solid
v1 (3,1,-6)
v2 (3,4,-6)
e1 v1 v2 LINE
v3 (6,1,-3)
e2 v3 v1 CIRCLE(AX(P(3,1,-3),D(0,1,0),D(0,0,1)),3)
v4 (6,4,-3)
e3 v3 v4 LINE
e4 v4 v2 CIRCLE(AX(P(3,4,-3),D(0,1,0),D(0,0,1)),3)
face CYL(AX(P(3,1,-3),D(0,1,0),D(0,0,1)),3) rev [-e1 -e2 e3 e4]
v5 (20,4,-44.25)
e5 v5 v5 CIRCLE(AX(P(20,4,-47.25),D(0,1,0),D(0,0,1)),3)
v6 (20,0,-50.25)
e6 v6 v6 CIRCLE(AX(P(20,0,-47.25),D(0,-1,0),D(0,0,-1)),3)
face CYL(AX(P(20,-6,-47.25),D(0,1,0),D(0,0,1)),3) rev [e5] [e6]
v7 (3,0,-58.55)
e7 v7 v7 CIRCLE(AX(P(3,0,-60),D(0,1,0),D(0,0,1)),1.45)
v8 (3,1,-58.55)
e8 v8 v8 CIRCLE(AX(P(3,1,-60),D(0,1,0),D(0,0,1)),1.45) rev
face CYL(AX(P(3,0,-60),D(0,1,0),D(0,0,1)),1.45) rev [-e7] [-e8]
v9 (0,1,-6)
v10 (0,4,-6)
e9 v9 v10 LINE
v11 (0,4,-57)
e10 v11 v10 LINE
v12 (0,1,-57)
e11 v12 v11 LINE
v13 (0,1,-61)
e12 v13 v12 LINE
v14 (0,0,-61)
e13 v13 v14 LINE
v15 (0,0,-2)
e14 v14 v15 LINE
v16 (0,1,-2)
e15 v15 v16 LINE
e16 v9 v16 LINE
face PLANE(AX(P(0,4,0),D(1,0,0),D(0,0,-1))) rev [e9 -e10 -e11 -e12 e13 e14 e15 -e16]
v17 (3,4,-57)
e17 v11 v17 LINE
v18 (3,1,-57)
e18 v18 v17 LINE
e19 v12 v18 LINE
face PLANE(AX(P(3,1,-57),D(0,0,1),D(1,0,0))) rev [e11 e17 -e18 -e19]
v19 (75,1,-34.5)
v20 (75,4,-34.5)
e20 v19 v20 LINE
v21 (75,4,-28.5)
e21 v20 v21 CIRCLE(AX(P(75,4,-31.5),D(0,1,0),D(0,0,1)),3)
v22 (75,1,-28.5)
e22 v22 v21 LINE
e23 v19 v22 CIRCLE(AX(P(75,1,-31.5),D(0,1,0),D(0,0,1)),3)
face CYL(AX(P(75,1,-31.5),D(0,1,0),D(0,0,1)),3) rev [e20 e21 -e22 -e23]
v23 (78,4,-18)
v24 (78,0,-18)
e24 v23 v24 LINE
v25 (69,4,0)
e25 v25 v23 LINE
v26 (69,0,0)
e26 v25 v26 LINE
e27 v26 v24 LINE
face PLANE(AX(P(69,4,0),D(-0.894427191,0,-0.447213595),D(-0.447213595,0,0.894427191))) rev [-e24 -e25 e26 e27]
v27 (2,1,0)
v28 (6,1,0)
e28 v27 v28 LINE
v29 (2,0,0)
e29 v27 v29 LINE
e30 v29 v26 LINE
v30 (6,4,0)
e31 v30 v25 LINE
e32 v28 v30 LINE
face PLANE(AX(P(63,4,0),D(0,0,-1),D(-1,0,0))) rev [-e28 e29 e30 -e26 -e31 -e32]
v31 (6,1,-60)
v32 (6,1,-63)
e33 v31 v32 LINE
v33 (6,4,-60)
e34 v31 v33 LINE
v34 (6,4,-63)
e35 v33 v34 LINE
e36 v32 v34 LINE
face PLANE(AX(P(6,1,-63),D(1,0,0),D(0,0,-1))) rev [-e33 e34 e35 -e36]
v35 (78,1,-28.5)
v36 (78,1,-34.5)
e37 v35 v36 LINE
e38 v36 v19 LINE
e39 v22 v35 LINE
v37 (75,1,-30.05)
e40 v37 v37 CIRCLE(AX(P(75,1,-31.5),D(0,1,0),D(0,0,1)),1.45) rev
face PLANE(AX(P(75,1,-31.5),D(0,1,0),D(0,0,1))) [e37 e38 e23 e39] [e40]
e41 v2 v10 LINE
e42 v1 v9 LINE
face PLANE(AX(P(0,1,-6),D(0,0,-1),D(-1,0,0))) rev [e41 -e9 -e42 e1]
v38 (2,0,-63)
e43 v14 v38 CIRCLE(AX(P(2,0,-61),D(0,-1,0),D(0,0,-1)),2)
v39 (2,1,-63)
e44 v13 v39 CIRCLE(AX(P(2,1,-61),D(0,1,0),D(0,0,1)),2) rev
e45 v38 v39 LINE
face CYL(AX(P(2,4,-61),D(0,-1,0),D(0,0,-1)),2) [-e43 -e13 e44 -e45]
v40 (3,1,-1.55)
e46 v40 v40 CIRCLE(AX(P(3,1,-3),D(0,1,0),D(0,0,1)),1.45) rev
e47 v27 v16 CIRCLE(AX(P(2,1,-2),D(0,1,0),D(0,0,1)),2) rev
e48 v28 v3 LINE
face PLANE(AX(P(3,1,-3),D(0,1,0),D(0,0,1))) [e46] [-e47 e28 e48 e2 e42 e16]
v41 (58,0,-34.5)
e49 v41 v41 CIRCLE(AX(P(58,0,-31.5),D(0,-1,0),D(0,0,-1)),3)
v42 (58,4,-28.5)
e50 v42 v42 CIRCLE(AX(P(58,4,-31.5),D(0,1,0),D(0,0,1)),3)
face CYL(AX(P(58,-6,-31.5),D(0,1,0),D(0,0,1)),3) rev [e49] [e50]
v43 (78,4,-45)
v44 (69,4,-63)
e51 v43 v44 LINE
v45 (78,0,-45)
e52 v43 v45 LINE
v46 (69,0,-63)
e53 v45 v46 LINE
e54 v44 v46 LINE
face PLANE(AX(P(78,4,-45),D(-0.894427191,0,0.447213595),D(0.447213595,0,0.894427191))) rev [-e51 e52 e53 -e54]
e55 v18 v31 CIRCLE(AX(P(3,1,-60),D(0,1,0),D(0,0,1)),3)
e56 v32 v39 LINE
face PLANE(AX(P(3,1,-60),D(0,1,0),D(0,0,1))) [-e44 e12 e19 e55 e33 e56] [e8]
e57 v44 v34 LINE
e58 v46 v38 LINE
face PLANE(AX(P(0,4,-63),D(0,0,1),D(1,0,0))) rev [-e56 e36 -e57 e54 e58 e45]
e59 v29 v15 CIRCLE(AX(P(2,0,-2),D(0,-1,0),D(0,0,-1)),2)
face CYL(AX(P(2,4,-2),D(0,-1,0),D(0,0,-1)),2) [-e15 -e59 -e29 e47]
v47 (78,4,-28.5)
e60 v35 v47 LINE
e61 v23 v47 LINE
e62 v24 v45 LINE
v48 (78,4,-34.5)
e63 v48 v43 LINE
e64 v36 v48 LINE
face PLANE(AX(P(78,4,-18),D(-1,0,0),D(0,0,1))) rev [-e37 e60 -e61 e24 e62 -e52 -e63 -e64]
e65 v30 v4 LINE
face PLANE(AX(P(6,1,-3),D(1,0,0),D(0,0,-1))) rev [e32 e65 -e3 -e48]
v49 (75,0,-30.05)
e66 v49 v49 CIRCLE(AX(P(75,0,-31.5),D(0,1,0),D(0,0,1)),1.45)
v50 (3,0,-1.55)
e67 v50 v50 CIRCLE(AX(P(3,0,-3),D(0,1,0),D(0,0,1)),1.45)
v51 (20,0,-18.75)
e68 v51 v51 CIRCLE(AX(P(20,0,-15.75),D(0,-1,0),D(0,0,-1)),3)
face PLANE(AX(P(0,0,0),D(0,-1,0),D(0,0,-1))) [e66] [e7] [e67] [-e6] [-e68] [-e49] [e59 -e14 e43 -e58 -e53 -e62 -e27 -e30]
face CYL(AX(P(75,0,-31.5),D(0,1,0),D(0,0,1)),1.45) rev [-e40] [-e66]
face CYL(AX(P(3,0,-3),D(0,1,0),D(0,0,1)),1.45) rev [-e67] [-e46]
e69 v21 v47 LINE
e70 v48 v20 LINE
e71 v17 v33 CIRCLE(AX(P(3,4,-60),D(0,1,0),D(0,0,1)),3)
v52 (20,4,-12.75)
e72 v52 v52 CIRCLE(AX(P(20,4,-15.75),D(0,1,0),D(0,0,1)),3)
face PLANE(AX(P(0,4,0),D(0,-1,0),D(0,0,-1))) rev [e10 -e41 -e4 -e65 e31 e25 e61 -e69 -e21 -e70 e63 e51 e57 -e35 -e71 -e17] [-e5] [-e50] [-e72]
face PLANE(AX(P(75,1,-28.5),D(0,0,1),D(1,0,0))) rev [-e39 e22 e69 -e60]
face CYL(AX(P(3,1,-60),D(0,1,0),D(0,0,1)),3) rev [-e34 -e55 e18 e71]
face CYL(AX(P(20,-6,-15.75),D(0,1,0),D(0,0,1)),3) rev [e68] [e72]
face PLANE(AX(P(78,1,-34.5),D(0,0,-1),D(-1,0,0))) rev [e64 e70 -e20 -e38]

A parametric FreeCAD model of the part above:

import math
import FreeCAD as App
import Part
import Sketcher

V = App.Vector


def edges_at(feature, points):
    """Names of the edges that pass closest to the given points."""
    edges = feature.Shape.Edges
    near = lambda p: min(range(len(edges)), key=lambda i: edges[i].distToShape(Part.Vertex(*p))[0])
    return sorted({f"Edge{near(p) + 1}" for p in points})


def add_polygon(sketch, points):
    """Adds a closed chain of lines whose ends are joined by coincident constraints."""
    first, n = sketch.GeometryCount, len(points)
    for a, b in zip(points, points[1:] + points[:1]):
        sketch.addGeometry(Part.LineSegment(App.Vector(*a, 0), App.Vector(*b, 0)), False)
    for i in range(n):
        sketch.addConstraint(Sketcher.Constraint("Coincident", first + i, 2, first + (i + 1) % n, 1))

doc = App.newDocument("Part")
params = doc.addObject("Spreadsheet::Sheet", "Params")
for row, (alias, value) in enumerate([
    ("sketch1_width", "69 mm"),
    ("sketch1_height", "27 mm"),
    ("sketch1_height2", "63 mm"),
    ("pad1_length", "4 mm"),
    ("sketch2_diameter", "2.9 mm"),
    ("pocket1_length", "4 mm"),
    ("fillet_radius", "2 mm"),
    ("sketch3_radius", "3 mm"),
    ("pocket2_length", "3 mm"),
    ("sketch4_diameter", "6 mm"),
    ("pocket3_length", "10 mm"),
], start=1):
    params.set(f"A{row}", alias)
    params.set(f"B{row}", "=" + value)
    params.setAlias(f"B{row}", alias)

body = doc.addObject("PartDesign::Body", "Body")

# Sketch on XZ plane
sketch1 = doc.addObject("Sketcher::SketchObject", "Sketch")
body.addObject(sketch1)
sketch1.AttachmentSupport = (doc.XZ_Plane, [""])
sketch1.MapMode = "FlatFace"
add_polygon(sketch1, [(69, 0), (78, -18), (78, -45), (69, -63), (0, -63), (0, 0)])  # lines 0-5
sketch1.addConstraint(Sketcher.Constraint("Vertical", 1))
sketch1.addConstraint(Sketcher.Constraint("Horizontal", 3))
sketch1.addConstraint(Sketcher.Constraint("Vertical", 4))
sketch1.addConstraint(Sketcher.Constraint("Horizontal", 5))
sketch1.addConstraint(Sketcher.Constraint("Coincident", 4, 2, -1, 1))
sketch1.addConstraint(Sketcher.Constraint("Vertical", 2, 2, 5, 2))
sketch1.addConstraint(Sketcher.Constraint("Equal", 0, 2))
sketch1.addConstraint(Sketcher.Constraint("DistanceX", 3, 2, 3, 1, 69.0))
sketch1.addConstraint(Sketcher.Constraint("DistanceY", 1, 2, 1, 1, 27.0))
sketch1.addConstraint(Sketcher.Constraint("DistanceY", 4, 1, 4, 2, 63.0))
sketch1.addConstraint(Sketcher.Constraint("DistanceX", -1, 1, 0, 2, 78.0))
sketch1.setExpression("Constraints[13]", "Params.sketch1_width")
sketch1.setExpression("Constraints[14]", "Params.sketch1_height")
sketch1.setExpression("Constraints[15]", "Params.sketch1_height2")
pad1 = doc.addObject("PartDesign::Pad", "Pad")
body.addObject(pad1)
pad1.Profile = sketch1
pad1.setExpression("Length", "Params.pad1_length")
pad1.Reversed = True

# Sketch on XZ plane
sketch2 = doc.addObject("Sketcher::SketchObject", "Sketch001")
body.addObject(sketch2)
sketch2.AttachmentSupport = (doc.XZ_Plane, [""])
sketch2.MapMode = "FlatFace"
sketch2.AttachmentOffset = App.Placement(V(0, 0, -4), App.Rotation())
sketch2.addGeometry(Part.Circle(V(3, -3, 0), V(0, 0, 1), 1.45), False)
sketch2.addGeometry(Part.Circle(V(3, -60, 0), V(0, 0, 1), 1.45), False)
sketch2.addGeometry(Part.Circle(V(75, -31.5, 0), V(0, 0, 1), 1.45), False)
sketch2.addConstraint(Sketcher.Constraint("Equal", 0, 1))
sketch2.addConstraint(Sketcher.Constraint("Equal", 1, 2))
sketch2.addConstraint(Sketcher.Constraint("Vertical", 0, 3, 1, 3))
sketch2.addConstraint(Sketcher.Constraint("Diameter", 0, 2.9))
sketch2.addConstraint(Sketcher.Constraint("DistanceX", -1, 1, 0, 3, 3.0))
sketch2.addConstraint(Sketcher.Constraint("DistanceY", 0, 3, -1, 1, 3.0))
sketch2.addConstraint(Sketcher.Constraint("DistanceY", 1, 3, -1, 1, 60.0))
sketch2.addConstraint(Sketcher.Constraint("DistanceX", -1, 1, 2, 3, 75.0))
sketch2.addConstraint(Sketcher.Constraint("DistanceY", 2, 3, -1, 1, 31.5))
sketch2.setExpression("Constraints[3]", "Params.sketch2_diameter")
pocket1 = doc.addObject("PartDesign::Pocket", "Pocket")
body.addObject(pocket1)
pocket1.Profile = sketch2
pocket1.setExpression("Length", "Params.pocket1_length")
pocket1.Reversed = True
doc.recompute()

fillet = doc.addObject("PartDesign::Fillet", "Fillet")
body.addObject(fillet)
fillet.Base = (pocket1, edges_at(pocket1, [(0, 2, -63), (0, 2, 0)]))
fillet.setExpression("Radius", "Params.fillet_radius")

# Sketch on XZ plane
sketch3 = doc.addObject("Sketcher::SketchObject", "Sketch002")
body.addObject(sketch3)
sketch3.AttachmentSupport = (doc.XZ_Plane, [""])
sketch3.MapMode = "FlatFace"
sketch3.AttachmentOffset = App.Placement(V(0, 0, -4), App.Rotation())
sketch3.addGeometry(Part.LineSegment(V(6, 0, 0), V(6, -3, 0)), False)
sketch3.addGeometry(Part.ArcOfCircle(Part.Circle(V(3, -3, 0), V(0, 0, 1), 3), math.radians(-90), math.radians(0)), False)
sketch3.addGeometry(Part.LineSegment(V(3, -6, 0), V(0, -6, 0)), False)
sketch3.addGeometry(Part.LineSegment(V(0, -6, 0), V(0, 0, 0)), False)
sketch3.addGeometry(Part.LineSegment(V(0, 0, 0), V(6, 0, 0)), False)
sketch3.addGeometry(Part.LineSegment(V(0, -57, 0), V(3, -57, 0)), False)
sketch3.addGeometry(Part.ArcOfCircle(Part.Circle(V(3, -60, 0), V(0, 0, 1), 3), math.radians(0), math.radians(90)), False)
sketch3.addGeometry(Part.LineSegment(V(6, -60, 0), V(6, -63, 0)), False)
sketch3.addGeometry(Part.LineSegment(V(6, -63, 0), V(0, -63, 0)), False)
sketch3.addGeometry(Part.LineSegment(V(0, -63, 0), V(0, -57, 0)), False)
sketch3.addGeometry(Part.LineSegment(V(75, -28.5, 0), V(78, -28.5, 0)), False)
sketch3.addGeometry(Part.LineSegment(V(78, -28.5, 0), V(78, -34.5, 0)), False)
sketch3.addGeometry(Part.LineSegment(V(78, -34.5, 0), V(75, -34.5, 0)), False)
sketch3.addGeometry(Part.ArcOfCircle(Part.Circle(V(75, -31.5, 0), V(0, 0, 1), 3), math.radians(90), math.radians(270)), False)
sketch3.addConstraint(Sketcher.Constraint("Tangent", 0, 2, 1, 2))
sketch3.addConstraint(Sketcher.Constraint("Tangent", 1, 1, 2, 1))
sketch3.addConstraint(Sketcher.Constraint("Coincident", 2, 2, 3, 1))
sketch3.addConstraint(Sketcher.Constraint("Coincident", 3, 2, 4, 1))
sketch3.addConstraint(Sketcher.Constraint("Coincident", 4, 2, 0, 1))
sketch3.addConstraint(Sketcher.Constraint("Tangent", 5, 2, 6, 2))
sketch3.addConstraint(Sketcher.Constraint("Tangent", 6, 1, 7, 1))
sketch3.addConstraint(Sketcher.Constraint("Coincident", 7, 2, 8, 1))
sketch3.addConstraint(Sketcher.Constraint("Coincident", 8, 2, 9, 1))
sketch3.addConstraint(Sketcher.Constraint("Coincident", 9, 2, 5, 1))
sketch3.addConstraint(Sketcher.Constraint("Coincident", 10, 2, 11, 1))
sketch3.addConstraint(Sketcher.Constraint("Coincident", 11, 2, 12, 1))
sketch3.addConstraint(Sketcher.Constraint("Tangent", 12, 2, 13, 2))
sketch3.addConstraint(Sketcher.Constraint("Tangent", 13, 1, 10, 1))
sketch3.addConstraint(Sketcher.Constraint("Vertical", 0))
sketch3.addConstraint(Sketcher.Constraint("Horizontal", 2))
sketch3.addConstraint(Sketcher.Constraint("Vertical", 3))
sketch3.addConstraint(Sketcher.Constraint("Horizontal", 4))
sketch3.addConstraint(Sketcher.Constraint("Horizontal", 5))
sketch3.addConstraint(Sketcher.Constraint("Vertical", 7))
sketch3.addConstraint(Sketcher.Constraint("Horizontal", 8))
sketch3.addConstraint(Sketcher.Constraint("Vertical", 9))
sketch3.addConstraint(Sketcher.Constraint("Horizontal", 10))
sketch3.addConstraint(Sketcher.Constraint("Vertical", 11))
sketch3.addConstraint(Sketcher.Constraint("Horizontal", 12))
sketch3.addConstraint(Sketcher.Constraint("Coincident", 3, 2, -1, 1))
sketch3.addConstraint(Sketcher.Constraint("Equal", 1, 6))
sketch3.addConstraint(Sketcher.Constraint("Equal", 6, 13))
sketch3.addConstraint(Sketcher.Constraint("PointOnObject", 8, 2, -2))
sketch3.addConstraint(Sketcher.Constraint("Vertical", 1, 3, 6, 3))
sketch3.addConstraint(Sketcher.Constraint("Equal", 5, 10))
sketch3.addConstraint(Sketcher.Constraint("Equal", 12, 0))
sketch3.addConstraint(Sketcher.Constraint("Equal", 0, 7))
sketch3.addConstraint(Sketcher.Constraint("Equal", 9, 11))
sketch3.addConstraint(Sketcher.Constraint("Radius", 1, 3.0))
sketch3.addConstraint(Sketcher.Constraint("DistanceY", 6, 3, -1, 1, 60.0))
sketch3.addConstraint(Sketcher.Constraint("DistanceX", -1, 1, 13, 3, 75.0))
sketch3.addConstraint(Sketcher.Constraint("DistanceY", 13, 3, -1, 1, 31.5))
sketch3.setExpression("Constraints[34]", "Params.sketch3_radius")
pocket2 = doc.addObject("PartDesign::Pocket", "Pocket001")
body.addObject(pocket2)
pocket2.Profile = sketch3
pocket2.setExpression("Length", "Params.pocket2_length")
pocket2.Reversed = True

# Sketch on XZ plane
sketch4 = doc.addObject("Sketcher::SketchObject", "Sketch003")
body.addObject(sketch4)
sketch4.AttachmentSupport = (doc.XZ_Plane, [""])
sketch4.MapMode = "FlatFace"
sketch4.AttachmentOffset = App.Placement(V(0, 0, -4), App.Rotation())
sketch4.addGeometry(Part.Circle(V(20, -47.25, 0), V(0, 0, 1), 3), False)
sketch4.addGeometry(Part.Circle(V(20, -15.75, 0), V(0, 0, 1), 3), False)
sketch4.addGeometry(Part.Circle(V(58, -31.5, 0), V(0, 0, 1), 3), False)
sketch4.addConstraint(Sketcher.Constraint("Equal", 0, 1))
sketch4.addConstraint(Sketcher.Constraint("Equal", 1, 2))
sketch4.addConstraint(Sketcher.Constraint("Vertical", 0, 3, 1, 3))
sketch4.addConstraint(Sketcher.Constraint("Diameter", 0, 6.0))
sketch4.addConstraint(Sketcher.Constraint("DistanceX", -1, 1, 0, 3, 20.0))
sketch4.addConstraint(Sketcher.Constraint("DistanceX", -1, 1, 2, 3, 58.0))
sketch4.addConstraint(Sketcher.Constraint("DistanceY", 2, 3, -1, 1, 31.5))
sketch4.addConstraint(Sketcher.Constraint("DistanceY", 0, 3, 1, 3, 31.5))
sketch4.addConstraint(Sketcher.Constraint("DistanceY", 0, 3, -1, 1, 47.25))
sketch4.setExpression("Constraints[3]", "Params.sketch4_diameter")
pocket3 = doc.addObject("PartDesign::Pocket", "Pocket002")
body.addObject(pocket3)
pocket3.Profile = sketch4
pocket3.setExpression("Length", "Params.pocket3_length")
pocket3.Reversed = True

doc.recompute()
